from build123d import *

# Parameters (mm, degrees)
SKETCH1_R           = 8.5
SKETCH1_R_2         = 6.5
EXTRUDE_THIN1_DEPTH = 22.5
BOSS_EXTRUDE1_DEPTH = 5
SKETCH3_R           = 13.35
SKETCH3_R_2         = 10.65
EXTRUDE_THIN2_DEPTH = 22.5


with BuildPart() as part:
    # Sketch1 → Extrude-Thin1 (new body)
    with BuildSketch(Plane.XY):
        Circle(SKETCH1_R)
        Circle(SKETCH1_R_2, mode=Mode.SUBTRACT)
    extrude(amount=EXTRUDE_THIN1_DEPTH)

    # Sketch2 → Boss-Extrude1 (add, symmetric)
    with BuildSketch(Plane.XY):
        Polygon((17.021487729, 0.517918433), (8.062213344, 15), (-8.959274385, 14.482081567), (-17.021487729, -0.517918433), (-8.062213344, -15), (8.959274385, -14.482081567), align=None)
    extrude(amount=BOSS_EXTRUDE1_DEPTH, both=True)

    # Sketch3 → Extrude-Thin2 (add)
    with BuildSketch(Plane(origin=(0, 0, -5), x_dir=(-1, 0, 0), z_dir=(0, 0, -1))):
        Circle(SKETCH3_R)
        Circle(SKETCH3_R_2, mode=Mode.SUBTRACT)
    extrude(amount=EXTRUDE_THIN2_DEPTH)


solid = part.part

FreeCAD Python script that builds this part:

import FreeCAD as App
import Part
import Sketcher
from FreeCAD import Vector
Q = App.Units.Quantity

doc = App.newDocument("Part")
params = doc.addObject("Spreadsheet::Sheet", "Params")
for row, (alias, value) in enumerate([
    ("sketch1_diameter", "17 mm"),
    ("sketch1_diameter2", "13 mm"),
    ("pad1_length", "22.5 mm"),
    ("pad2_length", "10 mm"),
    ("sketch3_diameter", "26.7 mm"),
    ("sketch3_diameter2", "21.3 mm"),
    ("pad3_length", "22.5 mm"),
], start=1):
    params.set(f"A{row}", alias)
    params.set(f"B{row}", "=" + value)
    params.setAlias(f"B{row}", alias)

body = doc.addObject("PartDesign::Body", "Body")

sketch1 = body.newObject("Sketcher::SketchObject", "Sketch")
sketch1.AttachmentSupport = (doc.getObject("XY_Plane"), [""])
sketch1.MapMode = "FlatFace"
sketch1.addGeometry([
    Part.Circle(Vector(0, 0, 0), Vector(0, 0, 1), 8),
    Part.Circle(Vector(0, 0, 0), Vector(0, 0, 1), 6),
], False)
sketch1.addConstraint([
    Sketcher.Constraint("Coincident", 0, 3, -1, 1),
    Sketcher.Constraint("Coincident", 1, 3, -1, 1),
    Sketcher.Constraint("Diameter", 0, Q("17 mm")),
    Sketcher.Constraint("Diameter", 1, Q("13 mm")),
])
sketch1.setExpression("Constraints[2]", "Params.sketch1_diameter")
sketch1.setExpression("Constraints[3]", "Params.sketch1_diameter2")
pad1 = body.newObject("PartDesign::Pad", "Pad")
pad1.Profile = sketch1
pad1.setExpression("Length", "Params.pad1_length")

sketch2 = body.newObject("Sketcher::SketchObject", "Sketch001")
sketch2.AttachmentSupport = (doc.getObject("XY_Plane"), [""])
sketch2.MapMode = "FlatFace"
sketch2.addGeometry([
    Part.LineSegment(Vector(17, 1, 0), Vector(8, 15, 0)),
    Part.LineSegment(Vector(8, 15, 0), Vector(-9, 14, 0)),
    Part.LineSegment(Vector(-9, 14, 0), Vector(-17, -1, 0)),
    Part.LineSegment(Vector(-17, -1, 0), Vector(-8, -15, 0)),
    Part.LineSegment(Vector(-8, -15, 0), Vector(9, -14, 0)),
    Part.LineSegment(Vector(9, -14, 0), Vector(17, 1, 0)),
], False)
sketch2.addConstraint([
    Sketcher.Constraint("Coincident", 0, 2, 1, 1),
    Sketcher.Constraint("Coincident", 1, 2, 2, 1),
    Sketcher.Constraint("Coincident", 2, 2, 3, 1),
    Sketcher.Constraint("Coincident", 3, 2, 4, 1),
    Sketcher.Constraint("Coincident", 4, 2, 5, 1),
    Sketcher.Constraint("Coincident", 5, 2, 0, 1),
    Sketcher.Constraint("Symmetric", 0, 2, 3, 2, -1, 1),
    Sketcher.Constraint("Symmetric", 1, 2, 4, 2, -1, 1),
    Sketcher.Constraint("Symmetric", 2, 2, 5, 2, -1, 1),
    Sketcher.Constraint("Equal", 0, 1),
    Sketcher.Constraint("Equal", 1, 2),
    Sketcher.Constraint("DistanceY", -1, 1, 0, 2, Q("15 mm")),
    Sketcher.Constraint("DistanceY", 2, 2, 1, 2, Q("15 mm")),
    Sketcher.Constraint("DistanceX", 2, 2, 0, 2, Q("25.083701 mm")),
    Sketcher.Constraint("DistanceY", -1, 1, 1, 2, Q("14.482082 mm")),
])
pad2 = body.newObject("PartDesign::Pad", "Pad001")
pad2.Profile = sketch2
pad2.setExpression("Length", "Params.pad2_length")
pad2.Midplane = True

sketch3 = body.newObject("Sketcher::SketchObject", "Sketch002")
sketch3.AttachmentSupport = (doc.getObject("XY_Plane"), [""])
sketch3.MapMode = "FlatFace"
sketch3.AttachmentOffset = App.Placement(Vector(0, 0, -5), App.Rotation())
sketch3.addGeometry([
    Part.Circle(Vector(0, 0, 0), Vector(0, 0, 1), 13),
    Part.Circle(Vector(0, 0, 0), Vector(0, 0, 1), 11),
], False)
sketch3.addConstraint([
    Sketcher.Constraint("Coincident", 0, 3, -1, 1),
    Sketcher.Constraint("Coincident", 1, 3, -1, 1),
    Sketcher.Constraint("Diameter", 0, Q("26.7 mm")),
    Sketcher.Constraint("Diameter", 1, Q("21.3 mm")),
])
sketch3.setExpression("Constraints[2]", "Params.sketch3_diameter")
sketch3.setExpression("Constraints[3]", "Params.sketch3_diameter2")
pad3 = body.newObject("PartDesign::Pad", "Pad002")
pad3.Profile = sketch3
pad3.setExpression("Length", "Params.pad3_length")
pad3.Reversed = True

doc.recompute()
